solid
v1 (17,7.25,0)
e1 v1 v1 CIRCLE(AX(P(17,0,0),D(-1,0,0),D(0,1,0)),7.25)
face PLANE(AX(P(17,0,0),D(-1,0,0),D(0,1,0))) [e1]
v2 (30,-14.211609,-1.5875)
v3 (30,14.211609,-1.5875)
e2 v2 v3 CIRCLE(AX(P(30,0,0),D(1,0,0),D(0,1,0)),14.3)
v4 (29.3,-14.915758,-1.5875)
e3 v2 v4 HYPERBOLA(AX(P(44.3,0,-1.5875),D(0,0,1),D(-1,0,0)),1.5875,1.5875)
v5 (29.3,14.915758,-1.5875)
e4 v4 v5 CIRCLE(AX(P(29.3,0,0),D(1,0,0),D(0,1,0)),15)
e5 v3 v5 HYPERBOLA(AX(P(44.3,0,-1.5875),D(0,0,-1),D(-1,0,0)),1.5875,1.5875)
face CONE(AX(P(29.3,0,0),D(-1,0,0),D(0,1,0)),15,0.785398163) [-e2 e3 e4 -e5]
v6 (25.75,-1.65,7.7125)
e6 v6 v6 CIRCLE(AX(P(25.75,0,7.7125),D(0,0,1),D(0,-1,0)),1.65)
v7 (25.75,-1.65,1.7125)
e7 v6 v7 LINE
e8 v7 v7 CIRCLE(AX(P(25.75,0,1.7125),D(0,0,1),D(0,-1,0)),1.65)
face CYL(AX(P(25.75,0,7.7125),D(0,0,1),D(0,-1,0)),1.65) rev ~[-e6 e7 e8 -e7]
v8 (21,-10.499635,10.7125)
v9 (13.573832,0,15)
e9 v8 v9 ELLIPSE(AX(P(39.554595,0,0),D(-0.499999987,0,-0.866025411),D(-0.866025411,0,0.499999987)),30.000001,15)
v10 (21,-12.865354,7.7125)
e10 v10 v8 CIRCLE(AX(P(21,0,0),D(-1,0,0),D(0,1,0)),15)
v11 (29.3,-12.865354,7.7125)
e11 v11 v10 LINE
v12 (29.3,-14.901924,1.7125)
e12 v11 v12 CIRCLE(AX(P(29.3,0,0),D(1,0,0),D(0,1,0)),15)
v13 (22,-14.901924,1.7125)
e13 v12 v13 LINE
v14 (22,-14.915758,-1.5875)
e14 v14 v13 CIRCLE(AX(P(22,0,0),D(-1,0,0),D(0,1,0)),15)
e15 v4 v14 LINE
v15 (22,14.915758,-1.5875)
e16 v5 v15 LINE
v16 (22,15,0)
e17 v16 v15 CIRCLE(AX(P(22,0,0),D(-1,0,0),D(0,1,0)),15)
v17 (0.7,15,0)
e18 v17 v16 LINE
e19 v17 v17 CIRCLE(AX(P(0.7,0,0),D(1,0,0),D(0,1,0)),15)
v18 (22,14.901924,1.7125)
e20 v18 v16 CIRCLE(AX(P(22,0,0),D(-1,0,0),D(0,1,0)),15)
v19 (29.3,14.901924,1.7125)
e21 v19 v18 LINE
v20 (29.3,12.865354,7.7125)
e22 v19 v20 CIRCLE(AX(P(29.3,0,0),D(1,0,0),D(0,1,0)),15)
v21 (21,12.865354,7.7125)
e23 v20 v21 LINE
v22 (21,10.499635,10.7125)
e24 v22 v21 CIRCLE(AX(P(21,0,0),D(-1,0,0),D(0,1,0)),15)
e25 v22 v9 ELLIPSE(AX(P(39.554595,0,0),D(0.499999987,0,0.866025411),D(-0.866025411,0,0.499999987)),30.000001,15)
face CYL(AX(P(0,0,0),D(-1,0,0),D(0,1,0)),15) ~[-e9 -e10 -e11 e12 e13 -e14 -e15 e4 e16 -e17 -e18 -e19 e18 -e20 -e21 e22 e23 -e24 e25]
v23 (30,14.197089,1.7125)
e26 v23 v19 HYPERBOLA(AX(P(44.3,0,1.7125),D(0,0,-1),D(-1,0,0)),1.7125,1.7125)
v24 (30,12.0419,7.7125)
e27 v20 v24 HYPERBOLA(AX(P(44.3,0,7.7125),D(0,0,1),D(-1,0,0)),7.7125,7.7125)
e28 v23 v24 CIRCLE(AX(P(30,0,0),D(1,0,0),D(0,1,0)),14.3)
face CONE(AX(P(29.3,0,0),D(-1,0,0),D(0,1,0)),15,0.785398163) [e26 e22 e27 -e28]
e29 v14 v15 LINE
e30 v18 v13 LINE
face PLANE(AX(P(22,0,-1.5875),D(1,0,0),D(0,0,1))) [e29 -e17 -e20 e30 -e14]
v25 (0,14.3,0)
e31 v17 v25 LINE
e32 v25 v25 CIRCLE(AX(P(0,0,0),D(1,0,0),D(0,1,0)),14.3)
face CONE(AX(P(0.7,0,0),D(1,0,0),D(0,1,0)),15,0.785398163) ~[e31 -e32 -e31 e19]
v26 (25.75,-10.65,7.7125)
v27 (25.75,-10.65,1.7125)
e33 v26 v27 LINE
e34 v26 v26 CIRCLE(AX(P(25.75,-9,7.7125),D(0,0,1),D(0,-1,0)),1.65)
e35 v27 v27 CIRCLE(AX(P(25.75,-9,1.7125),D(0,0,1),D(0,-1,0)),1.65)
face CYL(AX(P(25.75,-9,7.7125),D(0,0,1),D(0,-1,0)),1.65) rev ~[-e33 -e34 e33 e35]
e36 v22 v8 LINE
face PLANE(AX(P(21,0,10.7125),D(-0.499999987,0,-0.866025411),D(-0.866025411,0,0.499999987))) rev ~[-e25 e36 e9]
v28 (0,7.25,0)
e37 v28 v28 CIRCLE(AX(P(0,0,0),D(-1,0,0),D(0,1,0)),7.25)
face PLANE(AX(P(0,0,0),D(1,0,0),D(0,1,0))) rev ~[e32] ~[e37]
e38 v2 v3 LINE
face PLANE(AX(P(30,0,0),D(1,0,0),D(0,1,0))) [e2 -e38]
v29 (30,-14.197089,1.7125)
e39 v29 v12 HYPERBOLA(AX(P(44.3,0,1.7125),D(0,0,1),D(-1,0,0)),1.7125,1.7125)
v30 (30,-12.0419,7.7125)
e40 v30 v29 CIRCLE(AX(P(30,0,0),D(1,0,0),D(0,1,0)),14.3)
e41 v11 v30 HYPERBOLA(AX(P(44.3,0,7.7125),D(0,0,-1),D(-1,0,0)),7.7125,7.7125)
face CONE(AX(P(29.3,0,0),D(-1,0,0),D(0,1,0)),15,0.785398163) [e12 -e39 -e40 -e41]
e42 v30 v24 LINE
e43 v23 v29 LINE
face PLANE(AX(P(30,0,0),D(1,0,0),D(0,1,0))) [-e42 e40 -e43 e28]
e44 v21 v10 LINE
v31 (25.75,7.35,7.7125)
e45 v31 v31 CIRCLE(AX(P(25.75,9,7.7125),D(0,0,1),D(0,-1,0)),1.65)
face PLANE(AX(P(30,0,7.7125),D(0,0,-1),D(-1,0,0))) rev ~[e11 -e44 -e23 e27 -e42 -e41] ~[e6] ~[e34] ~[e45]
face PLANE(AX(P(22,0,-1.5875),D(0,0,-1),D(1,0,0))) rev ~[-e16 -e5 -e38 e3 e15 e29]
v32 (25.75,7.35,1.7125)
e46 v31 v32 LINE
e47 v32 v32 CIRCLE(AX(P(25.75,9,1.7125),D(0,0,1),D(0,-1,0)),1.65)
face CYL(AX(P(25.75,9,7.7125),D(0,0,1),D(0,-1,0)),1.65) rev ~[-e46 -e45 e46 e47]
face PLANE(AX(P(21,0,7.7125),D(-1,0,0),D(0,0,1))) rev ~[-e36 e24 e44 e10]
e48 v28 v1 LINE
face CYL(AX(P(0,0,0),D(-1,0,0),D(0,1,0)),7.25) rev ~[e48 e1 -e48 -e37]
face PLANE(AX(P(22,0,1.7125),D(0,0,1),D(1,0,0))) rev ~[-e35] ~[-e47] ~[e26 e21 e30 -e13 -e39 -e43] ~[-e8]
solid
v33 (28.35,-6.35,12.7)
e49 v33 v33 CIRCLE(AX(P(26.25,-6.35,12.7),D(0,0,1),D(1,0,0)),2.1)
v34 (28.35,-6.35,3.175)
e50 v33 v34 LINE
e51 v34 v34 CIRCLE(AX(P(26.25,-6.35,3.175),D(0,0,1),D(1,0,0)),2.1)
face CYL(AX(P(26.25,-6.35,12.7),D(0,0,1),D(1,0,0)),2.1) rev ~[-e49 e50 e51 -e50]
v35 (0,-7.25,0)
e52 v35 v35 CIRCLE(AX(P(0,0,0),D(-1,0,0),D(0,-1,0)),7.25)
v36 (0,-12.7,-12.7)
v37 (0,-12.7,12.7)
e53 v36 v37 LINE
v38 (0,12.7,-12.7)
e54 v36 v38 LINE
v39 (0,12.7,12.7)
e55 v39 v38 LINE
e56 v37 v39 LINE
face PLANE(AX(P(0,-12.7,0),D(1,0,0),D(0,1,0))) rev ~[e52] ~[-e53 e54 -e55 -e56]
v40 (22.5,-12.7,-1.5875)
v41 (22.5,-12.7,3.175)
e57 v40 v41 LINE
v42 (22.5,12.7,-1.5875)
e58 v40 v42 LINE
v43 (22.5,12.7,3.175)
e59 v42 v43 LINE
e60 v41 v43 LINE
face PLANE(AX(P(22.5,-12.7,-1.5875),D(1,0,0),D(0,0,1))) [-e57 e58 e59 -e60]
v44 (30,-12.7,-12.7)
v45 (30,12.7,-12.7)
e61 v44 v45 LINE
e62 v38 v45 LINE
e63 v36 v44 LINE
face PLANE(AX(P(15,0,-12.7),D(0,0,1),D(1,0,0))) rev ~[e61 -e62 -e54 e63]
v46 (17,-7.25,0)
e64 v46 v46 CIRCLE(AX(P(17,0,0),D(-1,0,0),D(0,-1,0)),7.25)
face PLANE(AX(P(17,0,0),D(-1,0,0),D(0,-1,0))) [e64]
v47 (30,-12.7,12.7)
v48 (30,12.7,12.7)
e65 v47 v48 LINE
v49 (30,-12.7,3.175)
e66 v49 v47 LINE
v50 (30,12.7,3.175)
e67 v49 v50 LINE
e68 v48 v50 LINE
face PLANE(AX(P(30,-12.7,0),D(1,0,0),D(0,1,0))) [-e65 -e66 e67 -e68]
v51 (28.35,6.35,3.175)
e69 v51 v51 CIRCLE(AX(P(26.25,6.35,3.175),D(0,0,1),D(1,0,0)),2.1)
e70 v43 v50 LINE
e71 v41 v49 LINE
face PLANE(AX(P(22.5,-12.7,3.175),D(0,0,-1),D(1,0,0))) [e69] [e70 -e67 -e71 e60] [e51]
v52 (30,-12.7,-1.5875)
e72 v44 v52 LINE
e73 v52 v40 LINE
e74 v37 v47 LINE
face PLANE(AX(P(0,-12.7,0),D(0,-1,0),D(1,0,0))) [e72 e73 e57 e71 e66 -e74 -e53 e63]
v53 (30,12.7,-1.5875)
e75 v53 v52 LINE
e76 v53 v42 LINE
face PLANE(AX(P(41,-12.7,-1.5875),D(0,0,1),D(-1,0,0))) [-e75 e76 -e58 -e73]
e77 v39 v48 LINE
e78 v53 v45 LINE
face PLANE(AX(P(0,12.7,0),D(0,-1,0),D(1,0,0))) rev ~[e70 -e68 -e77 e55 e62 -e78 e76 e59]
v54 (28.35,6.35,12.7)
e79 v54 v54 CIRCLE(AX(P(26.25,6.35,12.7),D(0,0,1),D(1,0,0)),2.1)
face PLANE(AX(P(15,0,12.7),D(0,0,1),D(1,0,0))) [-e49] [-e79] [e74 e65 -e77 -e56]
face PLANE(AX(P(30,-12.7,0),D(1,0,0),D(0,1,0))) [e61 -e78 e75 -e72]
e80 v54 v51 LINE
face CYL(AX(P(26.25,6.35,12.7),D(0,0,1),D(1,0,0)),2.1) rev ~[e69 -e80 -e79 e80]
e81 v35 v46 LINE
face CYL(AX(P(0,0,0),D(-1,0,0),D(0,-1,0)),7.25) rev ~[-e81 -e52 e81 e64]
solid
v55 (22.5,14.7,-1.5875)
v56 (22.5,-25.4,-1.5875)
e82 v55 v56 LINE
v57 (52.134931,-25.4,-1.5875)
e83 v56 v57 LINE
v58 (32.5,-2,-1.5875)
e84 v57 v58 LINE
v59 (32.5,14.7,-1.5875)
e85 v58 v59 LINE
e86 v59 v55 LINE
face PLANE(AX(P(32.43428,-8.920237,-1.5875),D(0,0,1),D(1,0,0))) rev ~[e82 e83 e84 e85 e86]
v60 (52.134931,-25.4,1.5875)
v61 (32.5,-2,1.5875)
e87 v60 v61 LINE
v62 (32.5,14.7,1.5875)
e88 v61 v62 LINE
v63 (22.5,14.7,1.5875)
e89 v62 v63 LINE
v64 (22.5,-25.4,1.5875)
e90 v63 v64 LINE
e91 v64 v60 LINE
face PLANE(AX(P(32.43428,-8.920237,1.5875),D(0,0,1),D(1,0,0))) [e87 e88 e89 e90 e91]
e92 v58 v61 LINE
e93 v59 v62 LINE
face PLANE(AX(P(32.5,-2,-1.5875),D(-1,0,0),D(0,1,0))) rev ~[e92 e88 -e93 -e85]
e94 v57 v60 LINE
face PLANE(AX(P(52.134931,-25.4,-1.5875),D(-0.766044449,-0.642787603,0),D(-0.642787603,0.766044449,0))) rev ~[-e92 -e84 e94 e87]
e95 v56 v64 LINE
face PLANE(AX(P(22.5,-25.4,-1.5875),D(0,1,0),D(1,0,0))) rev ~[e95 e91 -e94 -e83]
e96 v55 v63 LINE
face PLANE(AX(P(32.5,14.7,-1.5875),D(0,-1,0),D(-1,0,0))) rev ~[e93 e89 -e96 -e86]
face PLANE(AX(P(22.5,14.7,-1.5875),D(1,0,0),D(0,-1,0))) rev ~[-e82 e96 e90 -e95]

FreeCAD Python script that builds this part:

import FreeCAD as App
import Part
import Sketcher
from FreeCAD import Vector
Q = App.Units.Quantity


def edges_at(feature, points):
    """Names of the edges that pass closest to the given points."""
    edges = feature.Shape.Edges
    near = lambda p: min(range(len(edges)), key=lambda i: edges[i].distToShape(Part.Vertex(*p))[0])
    return sorted({f"Edge{near(p) + 1}" for p in points})


def add_polygon(sketch, points):
    """Adds a closed chain of lines whose ends are joined by coincident constraints."""
    first, n = sketch.GeometryCount, len(points)
    for a, b in zip(points, points[1:] + points[:1]):
        sketch.addGeometry(Part.LineSegment(App.Vector(*a, 0), App.Vector(*b, 0)), False)
    for i in range(n):
        sketch.addConstraint(Sketcher.Constraint("Coincident", first + i, 2, first + (i + 1) % n, 1))

doc = App.newDocument("Part")
params = doc.addObject("Spreadsheet::Sheet", "Params")
for row, (alias, value) in enumerate([
    ("sketch1_diameter", "30 mm"),
    ("pad1_length", "30 mm"),
    ("chamfer_size", "0.7 mm"),
    ("sketch2_width", "9 mm"),
    ("sketch2_width2", "8 mm"),
    ("sketch2_height", "3 mm"),
    ("sketch2_height2", "6 mm"),
    ("sketch2_height3", "40.3 mm"),
    ("sketch3_diameter", "3.3 mm"),
    ("pocket2_length", "6 mm"),
    ("sketch4_diameter", "14.5 mm"),
    ("pocket3_length", "17 mm"),
    ("sketch5_width", "10 mm"),
    ("sketch5_height", "40.1 mm"),
    ("sketch5_height2", "16.7 mm"),
    ("pad2_length", "3.175 mm"),
    ("sketch6_width", "30 mm"),
    ("sketch6_height", "25.4 mm"),
    ("pad3_length", "25.4 mm"),
    ("sketch7_diameter", "14.5 mm"),
    ("pocket4_length", "17 mm"),
    ("sketch8_width", "20 mm"),
    ("sketch8_width2", "15 mm"),
    ("sketch8_width3", "18.5 mm"),
    ("sketch9_diameter", "4.2 mm"),
    ("pocket6_length", "9.525 mm"),
], start=1):
    params.set(f"A{row}", alias)
    params.set(f"B{row}", "=" + value)
    params.setAlias(f"B{row}", alias)

body = doc.addObject("PartDesign::Body", "Body")

sketch1 = body.newObject("Sketcher::SketchObject", "Sketch")
sketch1.AttachmentSupport = (doc.getObject("YZ_Plane"), [""])
sketch1.MapMode = "FlatFace"
sketch1.addGeometry(Part.Circle(Vector(0, 0, 0), Vector(0, 0, 1), 15), False)
sketch1.addConstraint([
    Sketcher.Constraint("Coincident", 0, 3, -1, 1),
    Sketcher.Constraint("Diameter", 0, Q("30 mm")),
])
sketch1.setExpression("Constraints[1]", "Params.sketch1_diameter")
pad1 = body.newObject("PartDesign::Pad", "Pad")
pad1.Profile = sketch1
pad1.setExpression("Length", "Params.pad1_length")
doc.recompute()

chamfer = body.newObject("PartDesign::Chamfer", "Chamfer")
chamfer.Base = (pad1, edges_at(pad1, [(30, -15, 0), (0, -15, 0)]))
chamfer.setExpression("Size", "Params.chamfer_size")

sketch2 = body.newObject("Sketcher::SketchObject", "Sketch001")
sketch2.AttachmentSupport = (doc.getObject("XZ_Plane"), [""])
sketch2.MapMode = "FlatFace"
add_polygon(sketch2, [(22, -1.5875), (31, -1.5875), (31, 38.7125), (10.001477, 38.7125), (10.001477, 17.0625), (21, 10.7125), (21, 7.7125), (30, 7.7125), (30, 1.7125), (22, 1.7125)])
sketch2.addConstraint([
    Sketcher.Constraint("Horizontal", 0),
    Sketcher.Constraint("Vertical", 1),
    Sketcher.Constraint("Horizontal", 2),
    Sketcher.Constraint("Vertical", 3),
    Sketcher.Constraint("Vertical", 5),
    Sketcher.Constraint("Horizontal", 6),
    Sketcher.Constraint("Vertical", 7),
    Sketcher.Constraint("Horizontal", 8),
    Sketcher.Constraint("Vertical", 9),
    Sketcher.Constraint("Equal", 0, 6),
    Sketcher.Constraint("DistanceX", 0, 1, 0, 2, Q("9 mm")),
    Sketcher.Constraint("DistanceX", 8, 2, 8, 1, Q("8 mm")),
    Sketcher.Constraint("DistanceY", 5, 2, 5, 1, Q("3 mm")),
    Sketcher.Constraint("DistanceY", 7, 2, 7, 1, Q("6 mm")),
    Sketcher.Constraint("Angle", 4, Q("-29.999999 deg")),
    Sketcher.Constraint("DistanceY", 1, 1, 1, 2, Q("40.3 mm")),
    Sketcher.Constraint("DistanceY", 9, 2, 9, 1, Q("3.3 mm")),
    Sketcher.Constraint("DistanceX", -1, 1, 0, 2, Q("31 mm")),
    Sketcher.Constraint("Distance", 4, Q("12.7 mm")),
    Sketcher.Constraint("DistanceY", 0, 2, -1, 1, Q("1.5875 mm")),
])
sketch2.setExpression("Constraints[20]", "Params.sketch2_width")
sketch2.setExpression("Constraints[21]", "Params.sketch2_width2")
sketch2.setExpression("Constraints[22]", "Params.sketch2_height")
sketch2.setExpression("Constraints[23]", "Params.sketch2_height2")
sketch2.setExpression("Constraints[25]", "Params.sketch2_height3")
pocket1 = body.newObject("PartDesign::Pocket", "Pocket")
pocket1.Profile = sketch2
pocket1.Type = "ThroughAll"
pocket1.Midplane = True

sketch3 = body.newObject("Sketcher::SketchObject", "Sketch002")
sketch3.AttachmentSupport = (doc.getObject("XY_Plane"), [""])
sketch3.MapMode = "FlatFace"
sketch3.AttachmentOffset = App.Placement(Vector(0, 0, 7.7125), App.Rotation())
sketch3.addGeometry([
    Part.Circle(Vector(25.75, -9, 0), Vector(0, 0, 1), 1.65),
    Part.Circle(Vector(25.75, 0, 0), Vector(0, 0, 1), 1.65),
    Part.Circle(Vector(25.75, 9, 0), Vector(0, 0, 1), 1.65),
], False)
sketch3.addConstraint([
    Sketcher.Constraint("Equal", 0, 1),
    Sketcher.Constraint("Equal", 1, 2),
    Sketcher.Constraint("Symmetric", 0, 3, 2, 3, -1),
    Sketcher.Constraint("PointOnObject", 1, 3, -1),
    Sketcher.Constraint("Vertical", 0, 3, 1, 3),
    Sketcher.Constraint("Diameter", 0, Q("3.3 mm")),
    Sketcher.Constraint("DistanceY", 0, 3, -1, 1, Q("9 mm")),
    Sketcher.Constraint("DistanceX", -1, 1, 0, 3, Q("25.75 mm")),
])
sketch3.setExpression("Constraints[5]", "Params.sketch3_diameter")
pocket2 = body.newObject("PartDesign::Pocket", "Pocket001")
pocket2.Profile = sketch3
pocket2.setExpression("Length", "Params.pocket2_length")

sketch4 = body.newObject("Sketcher::SketchObject", "Sketch003")
sketch4.AttachmentSupport = (doc.getObject("YZ_Plane"), [""])
sketch4.MapMode = "FlatFace"
sketch4.addGeometry(Part.Circle(Vector(0, 0, 0), Vector(0, 0, 1), 7.25), False)
sketch4.addConstraint([
    Sketcher.Constraint("Coincident", 0, 3, -1, 1),
    Sketcher.Constraint("Diameter", 0, Q("14.5 mm")),
])
sketch4.setExpression("Constraints[1]", "Params.sketch4_diameter")
pocket3 = body.newObject("PartDesign::Pocket", "Pocket002")
pocket3.Profile = sketch4
pocket3.setExpression("Length", "Params.pocket3_length")
pocket3.Reversed = True
body2 = doc.addObject("PartDesign::Body", "Body001")

sketch5 = body2.newObject("Sketcher::SketchObject", "Sketch004")
sketch5.AttachmentSupport = (doc.getObject("XY_Plane001"), [""])
sketch5.MapMode = "FlatFace"
sketch5.AttachmentOffset = App.Placement(Vector(0, 0, -1.5875), App.Rotation())
add_polygon(sketch5, [(22.5, 14.7), (22.5, -25.4), (52.134931, -25.4), (32.5, -2), (32.5, 14.7)])
sketch5.addConstraint([
    Sketcher.Constraint("Vertical", 0),
    Sketcher.Constraint("Horizontal", 1),
    Sketcher.Constraint("Vertical", 3),
    Sketcher.Constraint("Horizontal", 4),
    Sketcher.Constraint("DistanceX", 4, 2, 4, 1, Q("10 mm")),
    Sketcher.Constraint("Angle", 2, Q("129.999999 deg")),
    Sketcher.Constraint("DistanceY", 0, 2, 0, 1, Q("40.1 mm")),
    Sketcher.Constraint("DistanceY", 3, 1, 3, 2, Q("16.7 mm")),
    Sketcher.Constraint("DistanceY", 2, 2, -1, 1, Q("2 mm")),
    Sketcher.Constraint("DistanceX", -1, 1, 0, 2, Q("22.5 mm")),
])
sketch5.setExpression("Constraints[9]", "Params.sketch5_width")
sketch5.setExpression("Constraints[11]", "Params.sketch5_height")
sketch5.setExpression("Constraints[12]", "Params.sketch5_height2")
pad2 = body2.newObject("PartDesign::Pad", "Pad001")
pad2.Profile = sketch5
pad2.setExpression("Length", "Params.pad2_length")
body3 = doc.addObject("PartDesign::Body", "Body002")

sketch6 = body3.newObject("Sketcher::SketchObject", "Sketch005")
sketch6.AttachmentSupport = (doc.getObject("XY_Plane002"), [""])
sketch6.MapMode = "FlatFace"
add_polygon(sketch6, [(0, 12.7), (0, -12.7), (30, -12.7), (30, 12.7)])
sketch6.addConstraint([
    Sketcher.Constraint("Vertical", 0),
    Sketcher.Constraint("Horizontal", 1),
    Sketcher.Constraint("Vertical", 2),
    Sketcher.Constraint("Horizontal", 3),
    Sketcher.Constraint("Symmetric", 0, 2, 3, 2, -1, 1),
    Sketcher.Constraint("DistanceX", 1, 1, 1, 2, Q("30 mm")),
    Sketcher.Constraint("DistanceY", 0, 2, 0, 1, Q("25.4 mm")),
])
sketch6.setExpression("Constraints[9]", "Params.sketch6_width")
sketch6.setExpression("Constraints[10]", "Params.sketch6_height")
pad3 = body3.newObject("PartDesign::Pad", "Pad002")
pad3.Profile = sketch6
pad3.setExpression("Length", "Params.pad3_length")
pad3.Midplane = True

sketch7 = body3.newObject("Sketcher::SketchObject", "Sketch006")
sketch7.AttachmentSupport = (doc.getObject("YZ_Plane002"), [""])
sketch7.MapMode = "FlatFace"
sketch7.addGeometry(Part.Circle(Vector(0, 0, 0), Vector(0, 0, 1), 7.25), False)
sketch7.addConstraint([
    Sketcher.Constraint("Coincident", 0, 3, -1, 1),
    Sketcher.Constraint("Diameter", 0, Q("14.5 mm")),
])
sketch7.setExpression("Constraints[1]", "Params.sketch7_diameter")
pocket4 = body3.newObject("PartDesign::Pocket", "Pocket003")
pocket4.Profile = sketch7
pocket4.setExpression("Length", "Params.pocket4_length")
pocket4.Reversed = True

sketch8 = body3.newObject("Sketcher::SketchObject", "Sketch007")
sketch8.AttachmentSupport = (doc.getObject("XZ_Plane002"), [""])
sketch8.MapMode = "FlatFace"
sketch8.AttachmentOffset = App.Placement(Vector(0, 0, 12.7), App.Rotation())
add_polygon(sketch8, [(22.5, -1.5875), (41, -1.5875), (41, 33.175), (21, 33.175), (21, 18.175), (36, 18.175), (36, 3.175), (22.5, 3.175)])
sketch8.addConstraint([
    Sketcher.Constraint("Horizontal", 0),
    Sketcher.Constraint("Vertical", 1),
    Sketcher.Constraint("Horizontal", 2),
    Sketcher.Constraint("Vertical", 3),
    Sketcher.Constraint("Horizontal", 4),
    Sketcher.Constraint("Vertical", 5),
    Sketcher.Constraint("Horizontal", 6),
    Sketcher.Constraint("Vertical", 7),
    Sketcher.Constraint("Equal", 4, 3),
    Sketcher.Constraint("Equal", 3, 5),
    Sketcher.Constraint("DistanceX", 2, 2, 2, 1, Q("20 mm")),
    Sketcher.Constraint("DistanceX", 4, 1, 4, 2, Q("15 mm")),
    Sketcher.Constraint("DistanceX", 0, 1, 0, 2, Q("18.5 mm")),
    Sketcher.Constraint("DistanceX", -1, 1, 0, 2, Q("41 mm")),
    Sketcher.Constraint("DistanceY", 1, 1, 1, 2, Q("34.7625 mm")),
    Sketcher.Constraint("DistanceY", -1, 1, 1, 2, Q("33.175 mm")),
])
sketch8.setExpression("Constraints[18]", "Params.sketch8_width")
sketch8.setExpression("Constraints[19]", "Params.sketch8_width2")
sketch8.setExpression("Constraints[20]", "Params.sketch8_width3")
pocket5 = body3.newObject("PartDesign::Pocket", "Pocket004")
pocket5.Profile = sketch8
pocket5.Type = "ThroughAll"

sketch9 = body3.newObject("Sketcher::SketchObject", "Sketch008")
sketch9.AttachmentSupport = (doc.getObject("XY_Plane002"), [""])
sketch9.MapMode = "FlatFace"
sketch9.AttachmentOffset = App.Placement(Vector(0, 0, 12.7), App.Rotation())
sketch9.addGeometry([
    Part.Circle(Vector(26.25, -6.35, 0), Vector(0, 0, 1), 2.1),
    Part.Circle(Vector(26.25, 6.35, 0), Vector(0, 0, 1), 2.1),
], False)
sketch9.addConstraint([
    Sketcher.Constraint("Equal", 0, 1),
    Sketcher.Constraint("Symmetric", 0, 3, 1, 3, -1),
    Sketcher.Constraint("Diameter", 0, Q("4.2 mm")),
    Sketcher.Constraint("DistanceY", 0, 3, 1, 3, Q("12.7 mm")),
    Sketcher.Constraint("DistanceX", -1, 1, 0, 3, Q("26.25 mm")),
])
sketch9.setExpression("Constraints[2]", "Params.sketch9_diameter")
pocket6 = body3.newObject("PartDesign::Pocket", "Pocket005")
pocket6.Profile = sketch9
pocket6.setExpression("Length", "Params.pocket6_length")

doc.recompute()
